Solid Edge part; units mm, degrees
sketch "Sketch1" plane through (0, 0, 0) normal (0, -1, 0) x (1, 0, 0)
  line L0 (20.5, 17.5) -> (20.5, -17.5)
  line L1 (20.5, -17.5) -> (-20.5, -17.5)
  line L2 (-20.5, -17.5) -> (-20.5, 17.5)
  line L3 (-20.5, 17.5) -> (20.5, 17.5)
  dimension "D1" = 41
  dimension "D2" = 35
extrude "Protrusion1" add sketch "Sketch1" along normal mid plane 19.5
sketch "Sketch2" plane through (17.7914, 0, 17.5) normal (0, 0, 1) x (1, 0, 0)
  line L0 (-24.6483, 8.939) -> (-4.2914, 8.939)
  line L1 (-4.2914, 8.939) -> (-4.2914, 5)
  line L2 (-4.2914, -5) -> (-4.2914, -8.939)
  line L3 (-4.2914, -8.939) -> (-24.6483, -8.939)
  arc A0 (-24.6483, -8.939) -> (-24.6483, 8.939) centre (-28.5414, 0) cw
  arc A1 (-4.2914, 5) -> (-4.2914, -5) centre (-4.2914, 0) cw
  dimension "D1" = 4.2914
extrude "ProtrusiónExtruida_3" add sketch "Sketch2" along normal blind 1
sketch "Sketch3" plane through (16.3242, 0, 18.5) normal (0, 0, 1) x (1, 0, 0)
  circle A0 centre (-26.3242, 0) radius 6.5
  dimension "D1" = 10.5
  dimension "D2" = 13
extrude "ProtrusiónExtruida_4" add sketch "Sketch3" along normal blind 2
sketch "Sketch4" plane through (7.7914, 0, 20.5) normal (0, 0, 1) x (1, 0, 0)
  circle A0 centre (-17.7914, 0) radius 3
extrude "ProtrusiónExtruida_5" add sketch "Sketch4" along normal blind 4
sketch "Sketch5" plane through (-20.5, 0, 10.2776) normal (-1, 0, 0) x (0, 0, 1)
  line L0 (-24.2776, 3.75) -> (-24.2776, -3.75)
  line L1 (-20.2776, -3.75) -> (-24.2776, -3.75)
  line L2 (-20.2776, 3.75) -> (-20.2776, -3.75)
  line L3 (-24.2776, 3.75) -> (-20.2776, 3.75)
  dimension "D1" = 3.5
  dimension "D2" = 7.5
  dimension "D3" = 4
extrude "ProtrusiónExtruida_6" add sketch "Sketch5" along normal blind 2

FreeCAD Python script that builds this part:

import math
import FreeCAD as App
import Part
import Sketcher

V = App.Vector
Q = App.Units.Quantity

doc = App.newDocument("Part")
params = doc.addObject("Spreadsheet::Sheet", "Params")
for row, (alias, value) in enumerate([
    ("sketch1_height", "35 mm"),
    ("pad1_length", "19.5 mm"),
    ("sketch2_radius", "5 mm"),
    ("sketch2_radius2", "9.75 mm"),
    ("pad2_length", "1 mm"),
    ("sketch3_diameter", "13 mm"),
    ("pad3_length", "2 mm"),
    ("sketch4_diameter", "6 mm"),
    ("pad4_length", "4 mm"),
    ("sketch5_height", "4 mm"),
    ("sketch5_width", "7.5 mm"),
    ("pad5_length", "2 mm"),
], start=1):
    params.set(f"A{row}", alias)
    params.set(f"B{row}", "=" + value)
    params.setAlias(f"B{row}", alias)

body = doc.addObject("PartDesign::Body", "Body")

sketch1 = body.newObject("Sketcher::SketchObject", "Sketch")
sketch1.AttachmentSupport = (doc.getObject("XZ_Plane"), [""])
sketch1.MapMode = "FlatFace"
sketch1.addGeometry([
    Part.LineSegment(V(20, -18, 0), V(20, 18, 0)),
    Part.LineSegment(V(20, 18, 0), V(-20, 18, 0)),
    Part.LineSegment(V(-20, 18, 0), V(-20, -18, 0)),
    Part.LineSegment(V(-20, -18, 0), V(20, -18, 0)),
], False)
sketch1.addConstraint([
    Sketcher.Constraint("Coincident", 0, 2, 1, 1),
    Sketcher.Constraint("Coincident", 1, 2, 2, 1),
    Sketcher.Constraint("Coincident", 2, 2, 3, 1),
    Sketcher.Constraint("Coincident", 3, 2, 0, 1),
    Sketcher.Constraint("Vertical", 0),
    Sketcher.Constraint("Horizontal", 1),
    Sketcher.Constraint("Vertical", 2),
    Sketcher.Constraint("Horizontal", 3),
    Sketcher.Constraint("Symmetric", 0, 2, 2, 2, -1, 1),
    Sketcher.Constraint("DistanceX", -1, 1, 0, 2, Q("20.5 mm")),
    Sketcher.Constraint("DistanceY", 0, 1, 0, 2, Q("35 mm")),
])
sketch1.setExpression("Constraints[10]", "Params.sketch1_height")
pad1 = body.newObject("PartDesign::Pad", "Pad")
pad1.Profile = sketch1
pad1.setExpression("Length", "Params.pad1_length")
pad1.Midplane = True

sketch2 = body.newObject("Sketcher::SketchObject", "Sketch001")
sketch2.AttachmentSupport = (doc.getObject("XY_Plane"), [""])
sketch2.MapMode = "FlatFace"
sketch2.AttachmentOffset = App.Placement(V(0, 0, 17.5), App.Rotation())
sketch2.addGeometry([
    Part.LineSegment(V(13.5, 8.9, 0), V(-6.9, 8.9, 0)),
    Part.ArcOfCircle(Part.Circle(V(-10.8, 0, 0), V(0, 0, 1), 9.7), math.radians(66), math.radians(294)),
    Part.LineSegment(V(-6.9, -8.9, 0), V(13.5, -8.9, 0)),
    Part.LineSegment(V(13.5, -8.9, 0), V(13.5, -5, 0)),
    Part.ArcOfCircle(Part.Circle(V(13.5, 0, 0), V(0, 0, 1), 5), math.radians(-90), math.radians(90)),
    Part.LineSegment(V(13.5, 5, 0), V(13.5, 8.9, 0)),
], False)
sketch2.addConstraint([
    Sketcher.Constraint("Coincident", 0, 2, 1, 1),
    Sketcher.Constraint("Coincident", 1, 2, 2, 1),
    Sketcher.Constraint("Coincident", 2, 2, 3, 1),
    Sketcher.Constraint("Coincident", 3, 2, 4, 1),
    Sketcher.Constraint("Coincident", 4, 2, 5, 1),
    Sketcher.Constraint("Coincident", 5, 2, 0, 1),
    Sketcher.Constraint("Horizontal", 0),
    Sketcher.Constraint("Horizontal", 2),
    Sketcher.Constraint("Vertical", 3),
    Sketcher.Constraint("Vertical", 5),
    Sketcher.Constraint("Symmetric", 0, 2, 1, 2, -1),
    Sketcher.Constraint("Symmetric", 3, 2, 4, 2, -1),
    Sketcher.Constraint("Vertical", 4, 3, 2, 2),
    Sketcher.Constraint("Radius", 4, Q("5 mm")),
    Sketcher.Constraint("Radius", 1, Q("9.75 mm")),
    Sketcher.Constraint("DistanceX", -1, 1, 4, 3, Q("13.5 mm")),
    Sketcher.Constraint("DistanceX", 0, 2, 0, 1, Q("20.357 mm")),
    Sketcher.Constraint("DistanceY", 3, 1, 3, 2, Q("3.939 mm")),
])
sketch2.setExpression("Constraints[13]", "Params.sketch2_radius")
sketch2.setExpression("Constraints[14]", "Params.sketch2_radius2")
pad2 = body.newObject("PartDesign::Pad", "Pad001")
pad2.Profile = sketch2
pad2.setExpression("Length", "Params.pad2_length")

sketch3 = body.newObject("Sketcher::SketchObject", "Sketch002")
sketch3.AttachmentSupport = (doc.getObject("XY_Plane"), [""])
sketch3.MapMode = "FlatFace"
sketch3.AttachmentOffset = App.Placement(V(0, 0, 18.5), App.Rotation())
sketch3.addGeometry(Part.Circle(V(-10, 0, 0), V(0, 0, 1), 6), False)
sketch3.addConstraint([
    Sketcher.Constraint("PointOnObject", 0, 3, -1),
    Sketcher.Constraint("Diameter", 0, Q("13 mm")),
    Sketcher.Constraint("DistanceX", 0, 3, -1, 1, Q("10 mm")),
])
sketch3.setExpression("Constraints[1]", "Params.sketch3_diameter")
pad3 = body.newObject("PartDesign::Pad", "Pad002")
pad3.Profile = sketch3
pad3.setExpression("Length", "Params.pad3_length")

sketch4 = body.newObject("Sketcher::SketchObject", "Sketch003")
sketch4.AttachmentSupport = (doc.getObject("XY_Plane"), [""])
sketch4.MapMode = "FlatFace"
sketch4.AttachmentOffset = App.Placement(V(0, 0, 20.5), App.Rotation())
sketch4.addGeometry(Part.Circle(V(-10, 0, 0), V(0, 0, 1), 3), False)
sketch4.addConstraint([
    Sketcher.Constraint("PointOnObject", 0, 3, -1),
    Sketcher.Constraint("Diameter", 0, Q("6 mm")),
    Sketcher.Constraint("DistanceX", 0, 3, -1, 1, Q("10 mm")),
])
sketch4.setExpression("Constraints[1]", "Params.sketch4_diameter")
pad4 = body.newObject("PartDesign::Pad", "Pad003")
pad4.Profile = sketch4
pad4.setExpression("Length", "Params.pad4_length")

sketch5 = body.newObject("Sketcher::SketchObject", "Sketch004")
sketch5.AttachmentSupport = (doc.getObject("YZ_Plane"), [""])
sketch5.MapMode = "FlatFace"
sketch5.AttachmentOffset = App.Placement(V(0, 0, -20.5), App.Rotation())
sketch5.addGeometry([
    Part.LineSegment(V(3.8, -10, 0), V(3.8, -14, 0)),
    Part.LineSegment(V(3.8, -14, 0), V(-3.8, -14, 0)),
    Part.LineSegment(V(-3.8, -14, 0), V(-3.8, -10, 0)),
    Part.LineSegment(V(-3.8, -10, 0), V(3.8, -10, 0)),
], False)
sketch5.addConstraint([
    Sketcher.Constraint("Coincident", 0, 2, 1, 1),
    Sketcher.Constraint("Coincident", 1, 2, 2, 1),
    Sketcher.Constraint("Coincident", 2, 2, 3, 1),
    Sketcher.Constraint("Coincident", 3, 2, 0, 1),
    Sketcher.Constraint("Vertical", 0),
    Sketcher.Constraint("Horizontal", 1),
    Sketcher.Constraint("Vertical", 2),
    Sketcher.Constraint("Horizontal", 3),
    Sketcher.Constraint("DistanceY", 0, 2, 0, 1, Q("4 mm")),
    Sketcher.Constraint("DistanceX", 1, 2, 1, 1, Q("7.5 mm")),
    Sketcher.Constraint("DistanceY", 0, 2, -1, 1, Q("14 mm")),
    Sketcher.Constraint("DistanceX", -1, 1, 0, 2, Q("3.75 mm")),
])
sketch5.setExpression("Constraints[8]", "Params.sketch5_height")
sketch5.setExpression("Constraints[9]", "Params.sketch5_width")
pad5 = body.newObject("PartDesign::Pad", "Pad004")
pad5.Profile = sketch5
pad5.setExpression("Length", "Params.pad5_length")
pad5.Reversed = True

doc.recompute()
